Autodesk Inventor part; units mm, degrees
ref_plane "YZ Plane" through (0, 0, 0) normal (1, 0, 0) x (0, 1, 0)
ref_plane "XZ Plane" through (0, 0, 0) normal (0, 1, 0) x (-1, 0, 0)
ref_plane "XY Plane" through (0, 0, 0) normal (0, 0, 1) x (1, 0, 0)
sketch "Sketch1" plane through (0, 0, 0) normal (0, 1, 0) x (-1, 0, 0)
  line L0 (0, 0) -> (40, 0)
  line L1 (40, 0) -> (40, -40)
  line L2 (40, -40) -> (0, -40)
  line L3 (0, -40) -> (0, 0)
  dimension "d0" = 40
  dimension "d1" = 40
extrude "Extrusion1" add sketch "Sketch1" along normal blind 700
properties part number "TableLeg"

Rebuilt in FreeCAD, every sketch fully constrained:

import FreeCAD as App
import Part
import Sketcher

V = App.Vector
Q = App.Units.Quantity


def add_polygon(sketch, points):
    """Adds a closed chain of lines whose ends are joined by coincident constraints."""
    first, n = sketch.GeometryCount, len(points)
    for a, b in zip(points, points[1:] + points[:1]):
        sketch.addGeometry(Part.LineSegment(App.Vector(*a, 0), App.Vector(*b, 0)), False)
    for i in range(n):
        sketch.addConstraint(Sketcher.Constraint("Coincident", first + i, 2, first + (i + 1) % n, 1))

doc = App.newDocument("Part")
body = doc.addObject("PartDesign::Body", "Body")

sketch1 = body.newObject("Sketcher::SketchObject", "Sketch")
sketch1.AttachmentSupport = (doc.getObject("XZ_Plane"), [""])
sketch1.MapMode = "FlatFace"
add_polygon(sketch1, [(-40, 0), (0, 0), (0, -40), (-40, -40)])
sketch1.addConstraint([
    Sketcher.Constraint("Horizontal", 0),
    Sketcher.Constraint("Vertical", 1),
    Sketcher.Constraint("Horizontal", 2),
    Sketcher.Constraint("Vertical", 3),
    Sketcher.Constraint("Coincident", 0, 2, -1, 1),
    Sketcher.Constraint("Equal", 2, 1),
    Sketcher.Constraint("DistanceX", 0, 1, 0, 2, Q("40 mm")),
])
pad1 = body.newObject("PartDesign::Pad", "Pad")
pad1.Profile = sketch1
pad1.Length = 700
pad1.Reversed = True

doc.recompute()
